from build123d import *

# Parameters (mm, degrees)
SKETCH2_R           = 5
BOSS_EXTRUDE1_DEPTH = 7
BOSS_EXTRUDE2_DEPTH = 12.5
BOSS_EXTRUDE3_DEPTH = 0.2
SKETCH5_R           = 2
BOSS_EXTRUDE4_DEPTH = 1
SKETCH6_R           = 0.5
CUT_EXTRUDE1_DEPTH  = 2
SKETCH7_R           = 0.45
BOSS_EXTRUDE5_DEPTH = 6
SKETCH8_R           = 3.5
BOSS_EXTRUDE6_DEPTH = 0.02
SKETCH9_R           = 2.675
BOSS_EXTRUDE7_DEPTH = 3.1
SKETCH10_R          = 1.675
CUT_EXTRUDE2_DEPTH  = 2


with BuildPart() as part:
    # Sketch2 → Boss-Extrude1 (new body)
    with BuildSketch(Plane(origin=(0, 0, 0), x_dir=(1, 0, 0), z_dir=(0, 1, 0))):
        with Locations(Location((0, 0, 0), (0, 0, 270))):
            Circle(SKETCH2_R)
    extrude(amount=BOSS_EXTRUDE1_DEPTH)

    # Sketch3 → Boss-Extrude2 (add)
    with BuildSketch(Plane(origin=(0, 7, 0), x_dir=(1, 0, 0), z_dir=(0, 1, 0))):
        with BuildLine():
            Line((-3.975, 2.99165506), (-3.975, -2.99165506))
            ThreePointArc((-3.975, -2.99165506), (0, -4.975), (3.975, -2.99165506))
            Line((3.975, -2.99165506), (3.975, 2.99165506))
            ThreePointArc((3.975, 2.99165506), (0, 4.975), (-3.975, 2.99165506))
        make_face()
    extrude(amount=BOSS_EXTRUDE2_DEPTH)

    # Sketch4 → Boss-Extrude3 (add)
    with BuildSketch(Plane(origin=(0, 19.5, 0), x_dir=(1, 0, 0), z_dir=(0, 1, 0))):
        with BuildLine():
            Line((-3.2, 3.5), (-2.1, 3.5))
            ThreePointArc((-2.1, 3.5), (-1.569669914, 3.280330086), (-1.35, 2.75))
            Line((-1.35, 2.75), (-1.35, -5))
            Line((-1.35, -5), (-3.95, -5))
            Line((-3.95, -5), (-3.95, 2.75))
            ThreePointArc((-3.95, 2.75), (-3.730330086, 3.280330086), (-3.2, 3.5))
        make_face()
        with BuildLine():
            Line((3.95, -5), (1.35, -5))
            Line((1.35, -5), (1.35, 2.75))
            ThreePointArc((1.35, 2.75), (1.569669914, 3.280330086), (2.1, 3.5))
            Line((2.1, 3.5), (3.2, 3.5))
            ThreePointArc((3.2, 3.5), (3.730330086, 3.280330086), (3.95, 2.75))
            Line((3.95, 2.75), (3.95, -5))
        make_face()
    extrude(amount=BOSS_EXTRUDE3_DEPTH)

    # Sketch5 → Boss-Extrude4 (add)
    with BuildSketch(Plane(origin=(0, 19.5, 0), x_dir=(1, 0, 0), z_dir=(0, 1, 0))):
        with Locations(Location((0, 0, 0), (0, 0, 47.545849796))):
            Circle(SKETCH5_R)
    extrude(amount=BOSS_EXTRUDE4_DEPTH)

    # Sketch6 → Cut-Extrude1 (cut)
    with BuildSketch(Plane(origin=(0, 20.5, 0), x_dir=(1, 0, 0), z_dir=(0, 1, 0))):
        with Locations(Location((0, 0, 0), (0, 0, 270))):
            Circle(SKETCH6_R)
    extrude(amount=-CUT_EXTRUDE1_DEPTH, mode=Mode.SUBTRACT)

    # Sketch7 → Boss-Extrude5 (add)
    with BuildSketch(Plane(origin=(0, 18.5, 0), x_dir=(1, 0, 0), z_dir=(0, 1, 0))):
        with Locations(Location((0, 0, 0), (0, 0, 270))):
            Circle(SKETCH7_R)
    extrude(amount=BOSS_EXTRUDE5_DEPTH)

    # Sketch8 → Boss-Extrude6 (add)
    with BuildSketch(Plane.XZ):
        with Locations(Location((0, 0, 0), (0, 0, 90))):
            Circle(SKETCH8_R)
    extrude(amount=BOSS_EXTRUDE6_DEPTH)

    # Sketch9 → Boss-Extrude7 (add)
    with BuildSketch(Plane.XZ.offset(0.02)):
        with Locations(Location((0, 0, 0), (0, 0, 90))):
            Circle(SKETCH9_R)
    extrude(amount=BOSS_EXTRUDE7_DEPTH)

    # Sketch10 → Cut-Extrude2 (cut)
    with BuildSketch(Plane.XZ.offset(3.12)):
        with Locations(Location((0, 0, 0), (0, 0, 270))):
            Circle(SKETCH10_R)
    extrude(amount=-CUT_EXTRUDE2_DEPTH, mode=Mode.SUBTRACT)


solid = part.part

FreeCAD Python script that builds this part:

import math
import FreeCAD as App
import Part
import Sketcher
Q = App.Units.Quantity

doc = App.newDocument("Part")
body = doc.addObject("PartDesign::Body", "Body")

# Sketch on XZ plane
sketch1 = body.newObject("Sketcher::SketchObject", "Sketch")
sketch1.AttachmentSupport = (doc.getObject("XZ_Plane"), [""])
sketch1.MapMode = "FlatFace"
sketch1.addGeometry(Part.Circle(App.Vector(0, 0, 0), App.Vector(0, 0, 1), 5), False)
sketch1.addConstraint([
    Sketcher.Constraint("Coincident", 0, 3, -1, 1),
    Sketcher.Constraint("Diameter", 0, Q("10 mm")),
])
pad1 = body.newObject("PartDesign::Pad", "Pad")
pad1.Profile = sketch1
pad1.Length = 7
pad1.Reversed = True

# Sketch on XZ plane
sketch2 = body.newObject("Sketcher::SketchObject", "Sketch001")
sketch2.AttachmentSupport = (doc.getObject("XZ_Plane"), [""])
sketch2.MapMode = "FlatFace"
sketch2.AttachmentOffset = App.Placement(App.Vector(0, 0, -7), App.Rotation())
sketch2.addGeometry([
    Part.LineSegment(App.Vector(-4, -3, 0), App.Vector(-4, 3, 0)),
    Part.ArcOfCircle(Part.Circle(App.Vector(0, 0, 0), App.Vector(0, 0, 1), 5), math.radians(37), math.radians(143)),
    Part.LineSegment(App.Vector(4, 3, 0), App.Vector(4, -3, 0)),
    Part.ArcOfCircle(Part.Circle(App.Vector(0, 0, 0), App.Vector(0, 0, 1), 5), math.radians(-143), math.radians(-37)),
], False)
sketch2.addConstraint([
    Sketcher.Constraint("Coincident", 0, 2, 1, 2),
    Sketcher.Constraint("Coincident", 1, 1, 2, 1),
    Sketcher.Constraint("Coincident", 2, 2, 3, 2),
    Sketcher.Constraint("Coincident", 3, 1, 0, 1),
    Sketcher.Constraint("Vertical", 0),
    Sketcher.Constraint("Vertical", 2),
    Sketcher.Constraint("Coincident", 1, 3, -1, 1),
    Sketcher.Constraint("Coincident", 3, 3, -1, 1),
    Sketcher.Constraint("Equal", 1, 3),
    Sketcher.Constraint("Horizontal", 0, 2, 1, 1),
    Sketcher.Constraint("Radius", 1, Q("4.975 mm")),
    Sketcher.Constraint("DistanceX", 0, 2, 1, 1, Q("7.95 mm")),
])
pad2 = body.newObject("PartDesign::Pad", "Pad001")
pad2.Profile = sketch2
pad2.Length = 12.5
pad2.Reversed = True

# Sketch on XZ plane
sketch3 = body.newObject("Sketcher::SketchObject", "Sketch002")
sketch3.AttachmentSupport = (doc.getObject("XZ_Plane"), [""])
sketch3.MapMode = "FlatFace"
sketch3.AttachmentOffset = App.Placement(App.Vector(0, 0, -19.5), App.Rotation())
sketch3.addGeometry([
    Part.LineSegment(App.Vector(-2.1, -3.5, 0), App.Vector(-3.2, -3.5, 0)),  # 0
    Part.ArcOfCircle(Part.Circle(App.Vector(-3.2, -2.8, 0), App.Vector(0, 0, 1), 0.8), math.radians(180), math.radians(270)),  # 1
    Part.LineSegment(App.Vector(-4, -2.8, 0), App.Vector(-4, 5, 0)),  # 2
    Part.LineSegment(App.Vector(-4, 5, 0), App.Vector(-1.4, 5, 0)),  # 3
    Part.LineSegment(App.Vector(-1.4, 5, 0), App.Vector(-1.4, -2.8, 0)),  # 4
    Part.ArcOfCircle(Part.Circle(App.Vector(-2.1, -2.8, 0), App.Vector(0, 0, 1), 0.8), math.radians(-90), math.radians(0)),  # 5
    Part.LineSegment(App.Vector(1.4, 5, 0), App.Vector(4, 5, 0)),  # 6
    Part.LineSegment(App.Vector(4, 5, 0), App.Vector(4, -2.8, 0)),  # 7
    Part.ArcOfCircle(Part.Circle(App.Vector(3.2, -2.8, 0), App.Vector(0, 0, 1), 0.8), math.radians(-90), math.radians(0)),  # 8
    Part.LineSegment(App.Vector(3.2, -3.5, 0), App.Vector(2.1, -3.5, 0)),  # 9
    Part.ArcOfCircle(Part.Circle(App.Vector(2.1, -2.8, 0), App.Vector(0, 0, 1), 0.8), math.radians(180), math.radians(270)),  # 10
    Part.LineSegment(App.Vector(1.4, -2.8, 0), App.Vector(1.4, 5, 0)),  # 11
], False)
sketch3.addConstraint([
    Sketcher.Constraint("Tangent", 0, 2, 1, 2),
    Sketcher.Constraint("Tangent", 1, 1, 2, 1),
    Sketcher.Constraint("Coincident", 2, 2, 3, 1),
    Sketcher.Constraint("Coincident", 3, 2, 4, 1),
    Sketcher.Constraint("Tangent", 4, 2, 5, 2),
    Sketcher.Constraint("Tangent", 5, 1, 0, 1),
    Sketcher.Constraint("Coincident", 6, 2, 7, 1),
    Sketcher.Constraint("Tangent", 7, 2, 8, 2),
    Sketcher.Constraint("Tangent", 8, 1, 9, 1),
    Sketcher.Constraint("Tangent", 9, 2, 10, 2),
    Sketcher.Constraint("Tangent", 10, 1, 11, 1),
    Sketcher.Constraint("Coincident", 11, 2, 6, 1),
    Sketcher.Constraint("Horizontal", 0),
    Sketcher.Constraint("Vertical", 2),
    Sketcher.Constraint("Horizontal", 3),
    Sketcher.Constraint("Vertical", 4),
    Sketcher.Constraint("Horizontal", 6),
    Sketcher.Constraint("Vertical", 7),
    Sketcher.Constraint("Horizontal", 9),
    Sketcher.Constraint("Vertical", 11),
    Sketcher.Constraint("Equal", 1, 5),
    Sketcher.Constraint("Equal", 5, 8),
    Sketcher.Constraint("Equal", 8, 10),
    Sketcher.Constraint("Symmetric", 1, 3, 8, 3, -2),
    Sketcher.Constraint("Symmetric", 3, 2, 11, 2, -2),
    Sketcher.Constraint("Radius", 1, Q("0.75 mm")),
    Sketcher.Constraint("DistanceX", 0, 2, 0, 1, Q("1.1 mm")),
    Sketcher.Constraint("DistanceY", -1, 1, 2, 2, Q("5 mm")),
    Sketcher.Constraint("DistanceY", 2, 1, 2, 2, Q("7.75 mm")),
    Sketcher.Constraint("DistanceX", 1, 3, -1, 1, Q("3.2 mm")),
])
pad3 = body.newObject("PartDesign::Pad", "Pad002")
pad3.Profile = sketch3
pad3.Length = 0.2
pad3.Reversed = True

# Sketch on XZ plane
sketch4 = body.newObject("Sketcher::SketchObject", "Sketch003")
sketch4.AttachmentSupport = (doc.getObject("XZ_Plane"), [""])
sketch4.MapMode = "FlatFace"
sketch4.AttachmentOffset = App.Placement(App.Vector(0, 0, -19.5), App.Rotation())
sketch4.addGeometry(Part.Circle(App.Vector(0, 0, 0), App.Vector(0, 0, 1), 2), False)
sketch4.addConstraint([
    Sketcher.Constraint("Coincident", 0, 3, -1, 1),
    Sketcher.Constraint("Diameter", 0, Q("4 mm")),
])
pad4 = body.newObject("PartDesign::Pad", "Pad003")
pad4.Profile = sketch4
pad4.Length = 1
pad4.Reversed = True

# Sketch on XZ plane
sketch5 = body.newObject("Sketcher::SketchObject", "Sketch004")
sketch5.AttachmentSupport = (doc.getObject("XZ_Plane"), [""])
sketch5.MapMode = "FlatFace"
sketch5.AttachmentOffset = App.Placement(App.Vector(0, 0, -20.5), App.Rotation())
sketch5.addGeometry(Part.Circle(App.Vector(0, 0, 0), App.Vector(0, 0, 1), 0.5), False)
sketch5.addConstraint([
    Sketcher.Constraint("Coincident", 0, 3, -1, 1),
    Sketcher.Constraint("Diameter", 0, Q("1 mm")),
])
pocket1 = body.newObject("PartDesign::Pocket", "Pocket")
pocket1.Profile = sketch5
pocket1.Length = 2
pocket1.Reversed = True

# Sketch on XZ plane
sketch6 = body.newObject("Sketcher::SketchObject", "Sketch005")
sketch6.AttachmentSupport = (doc.getObject("XZ_Plane"), [""])
sketch6.MapMode = "FlatFace"
sketch6.AttachmentOffset = App.Placement(App.Vector(0, 0, -18.5), App.Rotation())
sketch6.addGeometry(Part.Circle(App.Vector(0, 0, 0), App.Vector(0, 0, 1), 0.45), False)
sketch6.addConstraint([
    Sketcher.Constraint("Coincident", 0, 3, -1, 1),
    Sketcher.Constraint("Diameter", 0, Q("0.9 mm")),
])
pad5 = body.newObject("PartDesign::Pad", "Pad004")
pad5.Profile = sketch6
pad5.Length = 6
pad5.Reversed = True

# Sketch on XZ plane
sketch7 = body.newObject("Sketcher::SketchObject", "Sketch006")
sketch7.AttachmentSupport = (doc.getObject("XZ_Plane"), [""])
sketch7.MapMode = "FlatFace"
sketch7.addGeometry(Part.Circle(App.Vector(0, 0, 0), App.Vector(0, 0, 1), 3.5), False)
sketch7.addConstraint([
    Sketcher.Constraint("Coincident", 0, 3, -1, 1),
    Sketcher.Constraint("Diameter", 0, Q("7 mm")),
])
pad6 = body.newObject("PartDesign::Pad", "Pad005")
pad6.Profile = sketch7
pad6.Length = 0.02

# Sketch on XZ plane
sketch8 = body.newObject("Sketcher::SketchObject", "Sketch007")
sketch8.AttachmentSupport = (doc.getObject("XZ_Plane"), [""])
sketch8.MapMode = "FlatFace"
sketch8.AttachmentOffset = App.Placement(App.Vector(0, 0, 0.02), App.Rotation())
sketch8.addGeometry(Part.Circle(App.Vector(0, 0, 0), App.Vector(0, 0, 1), 2.7), False)
sketch8.addConstraint([
    Sketcher.Constraint("Coincident", 0, 3, -1, 1),
    Sketcher.Constraint("Diameter", 0, Q("5.35 mm")),
])
pad7 = body.newObject("PartDesign::Pad", "Pad006")
pad7.Profile = sketch8
pad7.Length = 3.1

# Sketch on XZ plane
sketch9 = body.newObject("Sketcher::SketchObject", "Sketch008")
sketch9.AttachmentSupport = (doc.getObject("XZ_Plane"), [""])
sketch9.MapMode = "FlatFace"
sketch9.AttachmentOffset = App.Placement(App.Vector(0, 0, 3.12), App.Rotation())
sketch9.addGeometry(Part.Circle(App.Vector(0, 0, 0), App.Vector(0, 0, 1), 1.7), False)
sketch9.addConstraint([
    Sketcher.Constraint("Coincident", 0, 3, -1, 1),
    Sketcher.Constraint("Diameter", 0, Q("3.35 mm")),
])
pocket2 = body.newObject("PartDesign::Pocket", "Pocket001")
pocket2.Profile = sketch9
pocket2.Length = 2

doc.recompute()
